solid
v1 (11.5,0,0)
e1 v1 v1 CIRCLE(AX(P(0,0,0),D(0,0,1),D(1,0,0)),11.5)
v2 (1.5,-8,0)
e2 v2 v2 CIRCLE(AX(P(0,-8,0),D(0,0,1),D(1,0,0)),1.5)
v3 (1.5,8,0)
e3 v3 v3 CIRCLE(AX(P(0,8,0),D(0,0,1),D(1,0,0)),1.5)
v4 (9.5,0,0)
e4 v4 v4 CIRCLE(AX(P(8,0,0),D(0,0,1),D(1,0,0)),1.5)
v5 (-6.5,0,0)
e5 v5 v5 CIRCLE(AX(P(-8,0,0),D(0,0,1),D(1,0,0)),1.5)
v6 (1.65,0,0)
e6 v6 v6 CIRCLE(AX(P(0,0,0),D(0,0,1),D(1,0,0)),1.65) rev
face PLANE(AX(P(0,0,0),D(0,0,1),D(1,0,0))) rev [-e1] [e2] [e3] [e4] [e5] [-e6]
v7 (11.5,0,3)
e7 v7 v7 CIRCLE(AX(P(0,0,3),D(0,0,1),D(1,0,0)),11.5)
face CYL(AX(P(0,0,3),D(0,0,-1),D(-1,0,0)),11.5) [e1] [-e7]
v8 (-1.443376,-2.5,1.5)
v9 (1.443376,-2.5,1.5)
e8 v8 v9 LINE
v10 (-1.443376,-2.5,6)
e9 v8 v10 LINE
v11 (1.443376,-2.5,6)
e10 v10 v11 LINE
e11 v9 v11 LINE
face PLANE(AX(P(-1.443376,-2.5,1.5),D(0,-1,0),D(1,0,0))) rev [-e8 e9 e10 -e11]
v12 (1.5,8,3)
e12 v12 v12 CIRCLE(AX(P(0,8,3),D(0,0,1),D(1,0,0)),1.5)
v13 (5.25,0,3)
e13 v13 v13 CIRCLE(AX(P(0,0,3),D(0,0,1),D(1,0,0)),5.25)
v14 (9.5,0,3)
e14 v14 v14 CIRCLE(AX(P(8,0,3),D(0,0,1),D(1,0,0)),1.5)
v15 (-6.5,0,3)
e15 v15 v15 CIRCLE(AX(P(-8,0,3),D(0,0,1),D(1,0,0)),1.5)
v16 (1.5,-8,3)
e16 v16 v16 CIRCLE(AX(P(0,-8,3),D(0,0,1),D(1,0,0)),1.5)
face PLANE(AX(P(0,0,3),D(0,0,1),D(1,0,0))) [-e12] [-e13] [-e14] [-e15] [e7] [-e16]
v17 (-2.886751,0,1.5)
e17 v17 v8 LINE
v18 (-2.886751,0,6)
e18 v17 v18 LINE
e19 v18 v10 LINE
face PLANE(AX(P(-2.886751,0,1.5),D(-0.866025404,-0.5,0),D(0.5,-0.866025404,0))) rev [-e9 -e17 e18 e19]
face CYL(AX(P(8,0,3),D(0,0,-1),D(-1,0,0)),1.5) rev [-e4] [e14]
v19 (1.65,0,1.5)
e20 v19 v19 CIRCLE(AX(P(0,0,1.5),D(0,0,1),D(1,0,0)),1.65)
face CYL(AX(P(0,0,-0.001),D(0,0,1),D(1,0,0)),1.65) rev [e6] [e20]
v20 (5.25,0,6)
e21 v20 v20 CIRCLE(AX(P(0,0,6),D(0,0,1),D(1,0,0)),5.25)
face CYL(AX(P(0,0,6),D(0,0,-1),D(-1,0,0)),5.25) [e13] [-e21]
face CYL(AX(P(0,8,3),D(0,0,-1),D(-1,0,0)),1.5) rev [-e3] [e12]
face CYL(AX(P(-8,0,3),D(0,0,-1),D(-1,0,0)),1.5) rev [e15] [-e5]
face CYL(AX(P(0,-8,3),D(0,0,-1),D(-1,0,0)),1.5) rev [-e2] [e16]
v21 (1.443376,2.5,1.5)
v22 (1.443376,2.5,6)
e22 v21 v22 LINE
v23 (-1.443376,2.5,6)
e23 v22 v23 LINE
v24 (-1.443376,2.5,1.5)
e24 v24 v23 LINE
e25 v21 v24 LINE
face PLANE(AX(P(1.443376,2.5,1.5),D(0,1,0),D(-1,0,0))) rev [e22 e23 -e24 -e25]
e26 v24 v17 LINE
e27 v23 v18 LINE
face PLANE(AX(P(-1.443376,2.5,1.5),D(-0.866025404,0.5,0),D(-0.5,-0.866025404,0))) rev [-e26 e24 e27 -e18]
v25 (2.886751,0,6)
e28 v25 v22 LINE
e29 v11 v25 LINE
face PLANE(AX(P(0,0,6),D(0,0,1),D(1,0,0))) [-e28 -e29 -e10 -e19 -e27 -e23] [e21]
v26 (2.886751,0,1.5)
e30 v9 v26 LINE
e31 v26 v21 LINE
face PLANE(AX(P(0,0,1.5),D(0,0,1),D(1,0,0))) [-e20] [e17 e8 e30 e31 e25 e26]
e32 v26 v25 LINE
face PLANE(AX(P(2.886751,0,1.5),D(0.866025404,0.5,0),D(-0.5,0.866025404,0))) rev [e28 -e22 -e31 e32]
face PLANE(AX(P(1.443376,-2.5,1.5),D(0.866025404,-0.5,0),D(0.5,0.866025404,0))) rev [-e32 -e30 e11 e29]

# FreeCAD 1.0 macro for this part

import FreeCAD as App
import Part
import Sketcher
from FreeCAD import Vector
Q = App.Units.Quantity


def add_polygon(sketch, points):
    """Adds a closed chain of lines whose ends are joined by coincident constraints."""
    first, n = sketch.GeometryCount, len(points)
    for a, b in zip(points, points[1:] + points[:1]):
        sketch.addGeometry(Part.LineSegment(App.Vector(*a, 0), App.Vector(*b, 0)), False)
    for i in range(n):
        sketch.addConstraint(Sketcher.Constraint("Coincident", first + i, 2, first + (i + 1) % n, 1))

doc = App.newDocument("Part")
body = doc.addObject("PartDesign::Body", "Body")

sketch1 = body.newObject("Sketcher::SketchObject", "Sketch")
sketch1.AttachmentSupport = (doc.getObject("XY_Plane"), [""])
sketch1.MapMode = "FlatFace"
sketch1.addGeometry([
    Part.Circle(Vector(0, 0, 0), Vector(0, 0, 1), 11.5),
    Part.Circle(Vector(0, -8, 0), Vector(0, 0, 1), 1.5),
    Part.Circle(Vector(-8, 0, 0), Vector(0, 0, 1), 1.5),
    Part.Circle(Vector(8, 0, 0), Vector(0, 0, 1), 1.5),
    Part.Circle(Vector(0, 8, 0), Vector(0, 0, 1), 1.5),
], False)
sketch1.addConstraint([
    Sketcher.Constraint("Coincident", 0, 3, -1, 1),
    Sketcher.Constraint("Equal", 1, 2),
    Sketcher.Constraint("Equal", 2, 3),
    Sketcher.Constraint("Equal", 3, 4),
    Sketcher.Constraint("Symmetric", 2, 3, 3, 3, -1, 1),
    Sketcher.Constraint("Symmetric", 1, 3, 4, 3, -1, 1),
    Sketcher.Constraint("PointOnObject", 1, 3, -2),
    Sketcher.Constraint("PointOnObject", 2, 3, -1),
    Sketcher.Constraint("Diameter", 0, Q("23 mm")),
    Sketcher.Constraint("Diameter", 1, Q("3 mm")),
    Sketcher.Constraint("DistanceY", 1, 3, -1, 1, Q("8 mm")),
    Sketcher.Constraint("DistanceX", 2, 3, -1, 1, Q("8 mm")),
])
pad1 = body.newObject("PartDesign::Pad", "Pad")
pad1.Profile = sketch1
pad1.Length = 3

sketch2 = body.newObject("Sketcher::SketchObject", "Sketch001")
sketch2.AttachmentSupport = (doc.getObject("XY_Plane"), [""])
sketch2.MapMode = "FlatFace"
sketch2.AttachmentOffset = App.Placement(Vector(0, 0, 3), App.Rotation())
sketch2.addGeometry(Part.Circle(Vector(0, 0, 0), Vector(0, 0, 1), 5), False)
sketch2.addConstraint([
    Sketcher.Constraint("Coincident", 0, 3, -1, 1),
    Sketcher.Constraint("Diameter", 0, Q("10.5 mm")),
])
pad2 = body.newObject("PartDesign::Pad", "Pad001")
pad2.Profile = sketch2
pad2.Length = 3

sketch3 = body.newObject("Sketcher::SketchObject", "Sketch002")
sketch3.AttachmentSupport = (doc.getObject("XY_Plane"), [""])
sketch3.MapMode = "FlatFace"
sketch3.AttachmentOffset = App.Placement(Vector(0, 0, 6), App.Rotation())
add_polygon(sketch3, [(2.9, 0), (1.4, 2.5), (-1.4, 2.5), (-2.9, 0), (-1.4, -2.5), (1.4, -2.5)])
sketch3.addConstraint([
    Sketcher.Constraint("Horizontal", 1),
    Sketcher.Constraint("Horizontal", 4),
    Sketcher.Constraint("Symmetric", 0, 2, 3, 2, -1, 1),
    Sketcher.Constraint("Symmetric", 2, 2, 5, 2, -1, 1),
    Sketcher.Constraint("PointOnObject", 2, 2, -1),
    Sketcher.Constraint("Parallel", 2, 5),
    Sketcher.Constraint("Vertical", 1, 2, 3, 2),
    Sketcher.Constraint("Angle", 0, Q("120 deg")),
    Sketcher.Constraint("DistanceY", 3, 2, 1, 2, Q("5 mm")),
    Sketcher.Constraint("DistanceX", 1, 2, 1, 1, Q("2.886751 mm")),
])
pocket1 = body.newObject("PartDesign::Pocket", "Pocket")
pocket1.Profile = sketch3
pocket1.Length = 4.5

sketch4 = body.newObject("Sketcher::SketchObject", "Sketch003")
sketch4.AttachmentSupport = (doc.getObject("XY_Plane"), [""])
sketch4.MapMode = "FlatFace"
sketch4.AttachmentOffset = App.Placement(Vector(0, 0, 1.5), App.Rotation())
sketch4.addGeometry(Part.Circle(Vector(0, 0, 0), Vector(0, 0, 1), 1.6), False)
sketch4.addConstraint([
    Sketcher.Constraint("Coincident", 0, 3, -1, 1),
    Sketcher.Constraint("Diameter", 0, Q("3.3 mm")),
])
pocket2 = body.newObject("PartDesign::Pocket", "Pocket001")
pocket2.Profile = sketch4
pocket2.Type = "UpToFirst"

doc.recompute()
